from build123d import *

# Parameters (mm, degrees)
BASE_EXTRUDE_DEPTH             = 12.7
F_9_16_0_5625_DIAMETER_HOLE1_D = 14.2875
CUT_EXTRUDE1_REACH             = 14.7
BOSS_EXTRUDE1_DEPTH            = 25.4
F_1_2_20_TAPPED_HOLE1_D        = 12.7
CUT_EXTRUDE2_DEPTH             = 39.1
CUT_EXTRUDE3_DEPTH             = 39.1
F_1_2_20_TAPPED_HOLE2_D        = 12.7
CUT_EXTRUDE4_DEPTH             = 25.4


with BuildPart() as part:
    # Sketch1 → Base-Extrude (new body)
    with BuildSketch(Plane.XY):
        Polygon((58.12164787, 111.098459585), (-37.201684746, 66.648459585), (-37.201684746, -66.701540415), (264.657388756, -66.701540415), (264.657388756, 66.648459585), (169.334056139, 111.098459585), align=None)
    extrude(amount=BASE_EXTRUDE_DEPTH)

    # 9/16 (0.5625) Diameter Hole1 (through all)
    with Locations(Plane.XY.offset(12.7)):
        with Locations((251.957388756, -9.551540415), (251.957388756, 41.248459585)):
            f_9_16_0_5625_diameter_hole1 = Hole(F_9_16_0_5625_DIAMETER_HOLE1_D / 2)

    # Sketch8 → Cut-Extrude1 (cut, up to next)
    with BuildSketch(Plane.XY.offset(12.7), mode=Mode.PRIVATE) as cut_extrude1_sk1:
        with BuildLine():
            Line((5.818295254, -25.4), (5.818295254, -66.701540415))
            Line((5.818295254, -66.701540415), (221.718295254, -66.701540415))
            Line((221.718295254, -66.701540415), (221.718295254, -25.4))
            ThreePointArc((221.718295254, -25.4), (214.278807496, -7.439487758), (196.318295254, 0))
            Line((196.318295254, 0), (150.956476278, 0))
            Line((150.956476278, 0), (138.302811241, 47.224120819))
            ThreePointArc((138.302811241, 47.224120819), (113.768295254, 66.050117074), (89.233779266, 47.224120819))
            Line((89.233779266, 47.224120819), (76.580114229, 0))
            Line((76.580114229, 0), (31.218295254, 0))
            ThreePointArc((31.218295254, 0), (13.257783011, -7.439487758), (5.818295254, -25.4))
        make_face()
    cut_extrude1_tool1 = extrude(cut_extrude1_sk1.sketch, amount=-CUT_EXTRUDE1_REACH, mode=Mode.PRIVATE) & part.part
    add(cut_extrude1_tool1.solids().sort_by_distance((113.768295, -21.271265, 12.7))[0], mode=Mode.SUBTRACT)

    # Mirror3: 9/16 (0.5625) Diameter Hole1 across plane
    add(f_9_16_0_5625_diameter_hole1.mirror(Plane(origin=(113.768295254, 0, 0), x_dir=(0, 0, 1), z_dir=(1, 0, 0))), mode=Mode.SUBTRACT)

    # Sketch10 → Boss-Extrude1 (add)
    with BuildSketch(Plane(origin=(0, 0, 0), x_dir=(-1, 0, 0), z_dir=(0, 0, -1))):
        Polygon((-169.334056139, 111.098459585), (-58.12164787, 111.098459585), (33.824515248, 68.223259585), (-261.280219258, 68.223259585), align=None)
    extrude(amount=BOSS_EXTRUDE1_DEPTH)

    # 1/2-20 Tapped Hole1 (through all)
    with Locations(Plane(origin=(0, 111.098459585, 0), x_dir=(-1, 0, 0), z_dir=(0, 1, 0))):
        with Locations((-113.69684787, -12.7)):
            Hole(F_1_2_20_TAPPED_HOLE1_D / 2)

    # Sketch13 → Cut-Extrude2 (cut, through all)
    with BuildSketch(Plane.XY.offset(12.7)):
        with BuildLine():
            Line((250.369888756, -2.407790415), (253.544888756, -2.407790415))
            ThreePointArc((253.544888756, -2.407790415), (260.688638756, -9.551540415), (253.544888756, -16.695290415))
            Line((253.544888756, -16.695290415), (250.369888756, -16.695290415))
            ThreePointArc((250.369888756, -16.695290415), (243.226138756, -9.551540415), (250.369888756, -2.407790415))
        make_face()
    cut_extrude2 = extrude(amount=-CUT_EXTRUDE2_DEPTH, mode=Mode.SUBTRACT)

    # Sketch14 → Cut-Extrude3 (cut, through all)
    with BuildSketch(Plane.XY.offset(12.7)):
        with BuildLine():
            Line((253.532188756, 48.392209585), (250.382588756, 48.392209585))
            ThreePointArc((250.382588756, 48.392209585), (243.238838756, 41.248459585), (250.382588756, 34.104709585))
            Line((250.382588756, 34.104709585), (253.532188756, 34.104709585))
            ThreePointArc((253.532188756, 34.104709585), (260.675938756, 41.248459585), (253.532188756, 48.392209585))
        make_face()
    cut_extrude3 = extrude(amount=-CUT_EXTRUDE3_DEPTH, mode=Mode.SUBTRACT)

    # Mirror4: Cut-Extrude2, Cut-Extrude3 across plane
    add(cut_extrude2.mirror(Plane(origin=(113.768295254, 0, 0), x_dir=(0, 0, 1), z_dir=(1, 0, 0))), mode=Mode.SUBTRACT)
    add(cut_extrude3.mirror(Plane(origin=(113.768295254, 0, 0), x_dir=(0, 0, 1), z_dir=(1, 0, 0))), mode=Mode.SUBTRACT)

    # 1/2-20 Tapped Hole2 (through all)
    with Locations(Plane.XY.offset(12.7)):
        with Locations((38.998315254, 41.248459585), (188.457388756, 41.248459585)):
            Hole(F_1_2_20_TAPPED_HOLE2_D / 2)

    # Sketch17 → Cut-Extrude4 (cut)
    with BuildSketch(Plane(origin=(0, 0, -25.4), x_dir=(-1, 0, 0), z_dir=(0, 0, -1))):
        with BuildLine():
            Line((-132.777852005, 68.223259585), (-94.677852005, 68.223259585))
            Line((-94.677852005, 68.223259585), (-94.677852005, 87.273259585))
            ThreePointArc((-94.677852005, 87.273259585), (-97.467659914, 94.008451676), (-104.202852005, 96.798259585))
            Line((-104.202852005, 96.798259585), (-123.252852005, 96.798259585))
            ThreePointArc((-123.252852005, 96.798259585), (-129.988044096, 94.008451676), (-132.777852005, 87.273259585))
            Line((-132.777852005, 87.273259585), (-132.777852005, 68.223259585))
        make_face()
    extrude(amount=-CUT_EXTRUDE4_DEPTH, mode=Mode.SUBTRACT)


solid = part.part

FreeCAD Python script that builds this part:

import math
import FreeCAD as App
import Part
import Sketcher
Q = App.Units.Quantity


def add_polygon(sketch, points):
    """Adds a closed chain of lines whose ends are joined by coincident constraints."""
    first, n = sketch.GeometryCount, len(points)
    for a, b in zip(points, points[1:] + points[:1]):
        sketch.addGeometry(Part.LineSegment(App.Vector(*a, 0), App.Vector(*b, 0)), False)
    for i in range(n):
        sketch.addConstraint(Sketcher.Constraint("Coincident", first + i, 2, first + (i + 1) % n, 1))

doc = App.newDocument("Part")
body = doc.addObject("PartDesign::Body", "Body")

# Sketch on XY plane
sketch1 = doc.addObject("Sketcher::SketchObject", "Sketch")
body.addObject(sketch1)
sketch1.AttachmentSupport = (doc.XY_Plane, [""])
sketch1.MapMode = "FlatFace"
add_polygon(sketch1, [(58.121648, 111.09846), (-37.201685, 66.64846), (-37.201685, -66.70154), (264.657389, -66.70154), (264.657389, 66.64846), (169.334056, 111.09846)])  # lines 0-5
sketch1.addConstraint(Sketcher.Constraint("Vertical", 1))
sketch1.addConstraint(Sketcher.Constraint("Horizontal", 2))
sketch1.addConstraint(Sketcher.Constraint("Vertical", 3))
sketch1.addConstraint(Sketcher.Constraint("Horizontal", 5))
sketch1.addConstraint(Sketcher.Constraint("Horizontal", 0, 2, 3, 2))
sketch1.addConstraint(Sketcher.Constraint("Equal", 0, 4))
sketch1.addConstraint(Sketcher.Constraint("Angle", 0, Q("-155 deg")))
sketch1.addConstraint(Sketcher.Constraint("DistanceY", 2, 2, 4, 2, Q("7 in")))
sketch1.addConstraint(Sketcher.Constraint("DistanceY", 1, 2, 1, 1, Q("5.25 in")))
sketch1.addConstraint(Sketcher.Constraint("DistanceX", 5, 2, 5, 1, 111.212408))
sketch1.addConstraint(Sketcher.Constraint("DistanceY", -1, 1, 0, 2, 66.64846))
sketch1.addConstraint(Sketcher.Constraint("DistanceX", -1, 1, 2, 2, 264.657389))
pad1 = doc.addObject("PartDesign::Pad", "Pad")
body.addObject(pad1)
pad1.Profile = sketch1
pad1.Length = Q("0.5 in")

# Sketch on XY plane
sketch2 = doc.addObject("Sketcher::SketchObject", "Sketch001")
body.addObject(sketch2)
sketch2.AttachmentSupport = (doc.XY_Plane, [""])
sketch2.MapMode = "FlatFace"
sketch2.AttachmentOffset = App.Placement(App.Vector(0, 0, 0.5 * 25.4), App.Rotation())
sketch2.addGeometry(Part.Circle(App.Vector(251.957389, -9.55154, 0), App.Vector(0, 0, 1), 7.14375), False)
sketch2.addGeometry(Part.Circle(App.Vector(251.957389, 41.24846, 0), App.Vector(0, 0, 1), 7.14375), False)
sketch2.addConstraint(Sketcher.Constraint("Equal", 0, 1))
sketch2.addConstraint(Sketcher.Constraint("Vertical", 0, 3, 1, 3))
sketch2.addConstraint(Sketcher.Constraint("Diameter", 0, Q("0.5625 in")))
sketch2.addConstraint(Sketcher.Constraint("DistanceY", 0, 3, 1, 3, Q("2 in")))
sketch2.addConstraint(Sketcher.Constraint("DistanceX", -1, 1, 0, 3, 251.957389))
sketch2.addConstraint(Sketcher.Constraint("DistanceY", 0, 3, -1, 1, 9.55154))
doc.recompute()
hole = doc.addObject("PartDesign::Hole", "Hole")
body.addObject(hole)
hole.Profile = sketch2
hole.ThreadType = "None"
hole.Diameter = Q("0.5625 in")
hole.DepthType = "ThroughAll"

# Sketch on XY plane
sketch3 = doc.addObject("Sketcher::SketchObject", "Sketch002")
body.addObject(sketch3)
sketch3.AttachmentSupport = (doc.XY_Plane, [""])
sketch3.MapMode = "FlatFace"
sketch3.AttachmentOffset = App.Placement(App.Vector(0, 0, 0.5 * 25.4), App.Rotation())
sketch3.addGeometry(Part.LineSegment(App.Vector(5.818295, -25.4, 0), App.Vector(5.818295, -66.70154, 0)), False)
sketch3.addGeometry(Part.LineSegment(App.Vector(5.818295, -66.70154, 0), App.Vector(221.718295, -66.70154, 0)), False)
sketch3.addGeometry(Part.LineSegment(App.Vector(221.718295, -66.70154, 0), App.Vector(221.718295, -25.4, 0)), False)
sketch3.addGeometry(Part.ArcOfCircle(Part.Circle(App.Vector(196.318295, -25.4, 0), App.Vector(0, 0, 1), 25.4), math.radians(0), math.radians(90)), False)
sketch3.addGeometry(Part.LineSegment(App.Vector(196.318295, 0, 0), App.Vector(150.956476, 0, 0)), False)
sketch3.addGeometry(Part.LineSegment(App.Vector(150.956476, 0, 0), App.Vector(138.302811, 47.224121, 0)), False)
sketch3.addGeometry(Part.ArcOfCircle(Part.Circle(App.Vector(113.768295, 40.650117, 0), App.Vector(0, 0, 1), 25.4), math.radians(15), math.radians(165)), False)
sketch3.addGeometry(Part.LineSegment(App.Vector(89.233779, 47.224121, 0), App.Vector(76.580114, 0, 0)), False)
sketch3.addGeometry(Part.LineSegment(App.Vector(76.580114, 0, 0), App.Vector(31.218295, 0, 0)), False)
sketch3.addGeometry(Part.ArcOfCircle(Part.Circle(App.Vector(31.218295, -25.4, 0), App.Vector(0, 0, 1), 25.4), math.radians(90), math.radians(180)), False)
sketch3.addConstraint(Sketcher.Constraint("Coincident", 0, 2, 1, 1))
sketch3.addConstraint(Sketcher.Constraint("Coincident", 1, 2, 2, 1))
sketch3.addConstraint(Sketcher.Constraint("Tangent", 2, 2, 3, 1))
sketch3.addConstraint(Sketcher.Constraint("Tangent", 3, 2, 4, 1))
sketch3.addConstraint(Sketcher.Constraint("Coincident", 4, 2, 5, 1))
sketch3.addConstraint(Sketcher.Constraint("Tangent", 5, 2, 6, 1))
sketch3.addConstraint(Sketcher.Constraint("Tangent", 6, 2, 7, 1))
sketch3.addConstraint(Sketcher.Constraint("Coincident", 7, 2, 8, 1))
sketch3.addConstraint(Sketcher.Constraint("Tangent", 8, 2, 9, 1))
sketch3.addConstraint(Sketcher.Constraint("Tangent", 9, 2, 0, 1))
sketch3.addConstraint(Sketcher.Constraint("Vertical", 0))
sketch3.addConstraint(Sketcher.Constraint("Horizontal", 1))
sketch3.addConstraint(Sketcher.Constraint("Vertical", 2))
sketch3.addConstraint(Sketcher.Constraint("Horizontal", 4))
sketch3.addConstraint(Sketcher.Constraint("Horizontal", 8))
sketch3.addConstraint(Sketcher.Constraint("Equal", 3, 6))
sketch3.addConstraint(Sketcher.Constraint("Equal", 6, 9))
sketch3.addConstraint(Sketcher.Constraint("PointOnObject", 3, 2, -1))
sketch3.addConstraint(Sketcher.Constraint("PointOnObject", 7, 2, -1))
sketch3.addConstraint(Sketcher.Constraint("Horizontal", 5, 2, 6, 2))
sketch3.addConstraint(Sketcher.Constraint("Equal", 4, 8))
sketch3.addConstraint(Sketcher.Constraint("Radius", 3, Q("1 in")))
sketch3.addConstraint(Sketcher.Constraint("DistanceX", 1, 1, 1, 2, Q("8.5 in")))
sketch3.addConstraint(Sketcher.Constraint("Angle", 5, Q("105 deg")))
sketch3.addConstraint(Sketcher.Constraint("DistanceX", 4, 2, 4, 1, 45.361819))
sketch3.addConstraint(Sketcher.Constraint("DistanceY", 0, 2, 0, 1, 41.30154))
sketch3.addConstraint(Sketcher.Constraint("DistanceX", -1, 1, 5, 2, 138.302811))
pocket1 = doc.addObject("PartDesign::Pocket", "Pocket")
body.addObject(pocket1)
pocket1.Profile = sketch3
pocket1.Type = "UpToFirst"
doc.recompute()

datumplane = doc.addObject("PartDesign::Plane", "DatumPlane")
body.addObject(datumplane)
datumplane.AttachmentSupport = (doc.YZ_Plane, [""])
datumplane.MapMode = "FlatFace"
datumplane.AttachmentOffset = App.Placement(App.Vector(0, 0, 113.768295), App.Rotation())
mirrored = doc.addObject("PartDesign::Mirrored", "Mirrored")
body.addObject(mirrored)
mirrored.Originals = [hole]
mirrored.MirrorPlane = (datumplane, [""])
body.Tip = mirrored

# Sketch on XY plane
sketch4 = doc.addObject("Sketcher::SketchObject", "Sketch003")
body.addObject(sketch4)
sketch4.AttachmentSupport = (doc.XY_Plane, [""])
sketch4.MapMode = "FlatFace"
add_polygon(sketch4, [(58.121648, 111.09846), (169.334056, 111.09846), (261.280219, 68.22326), (-33.824515, 68.22326)])  # lines 0-3
sketch4.addConstraint(Sketcher.Constraint("Horizontal", 0))
sketch4.addConstraint(Sketcher.Constraint("Horizontal", 2))
sketch4.addConstraint(Sketcher.Constraint("Equal", 1, 3))
sketch4.addConstraint(Sketcher.Constraint("Angle", 1, Q("-25 deg")))
sketch4.addConstraint(Sketcher.Constraint("DistanceY", 1, 2, 0, 2, Q("1.688 in")))
sketch4.addConstraint(Sketcher.Constraint("DistanceX", 0, 1, 0, 2, 111.212408))
sketch4.addConstraint(Sketcher.Constraint("DistanceY", -1, 1, 0, 2, 111.09846))
sketch4.addConstraint(Sketcher.Constraint("DistanceX", -1, 1, 1, 2, 261.280219))
pad2 = doc.addObject("PartDesign::Pad", "Pad001")
body.addObject(pad2)
pad2.Profile = sketch4
pad2.Length = Q("1 in")
pad2.Reversed = True

# Sketch on XZ plane
sketch5 = doc.addObject("Sketcher::SketchObject", "Sketch004")
body.addObject(sketch5)
sketch5.AttachmentSupport = (doc.XZ_Plane, [""])
sketch5.MapMode = "FlatFace"
sketch5.AttachmentOffset = App.Placement(App.Vector(0, 0, -111.09846), App.Rotation())
sketch5.addGeometry(Part.Circle(App.Vector(113.696848, -12.7, 0), App.Vector(0, 0, 1), 6.35), False)
sketch5.addConstraint(Sketcher.Constraint("Diameter", 0, Q("0.5 in")))
sketch5.addConstraint(Sketcher.Constraint("DistanceY", 0, 3, -1, 1, Q("0.5 in")))
sketch5.addConstraint(Sketcher.Constraint("DistanceX", -1, 1, 0, 3, 113.696848))
doc.recompute()
hole2 = doc.addObject("PartDesign::Hole", "Hole001")
body.addObject(hole2)
hole2.Profile = sketch5
hole2.ThreadType = "None"
hole2.Diameter = Q("0.5 in")
hole2.DepthType = "ThroughAll"
hole2.Reversed = True

# Sketch on XY plane
sketch6 = doc.addObject("Sketcher::SketchObject", "Sketch005")
body.addObject(sketch6)
sketch6.AttachmentSupport = (doc.XY_Plane, [""])
sketch6.MapMode = "FlatFace"
sketch6.AttachmentOffset = App.Placement(App.Vector(0, 0, 0.5 * 25.4), App.Rotation())
sketch6.addGeometry(Part.LineSegment(App.Vector(253.544889, -2.40779, 0), App.Vector(250.369889, -2.40779, 0)), False)
sketch6.addGeometry(Part.ArcOfCircle(Part.Circle(App.Vector(250.369889, -9.55154, 0), App.Vector(0, 0, 1), 7.14375), math.radians(90), math.radians(270)), False)
sketch6.addGeometry(Part.LineSegment(App.Vector(250.369889, -16.69529, 0), App.Vector(253.544889, -16.69529, 0)), False)
sketch6.addGeometry(Part.ArcOfCircle(Part.Circle(App.Vector(253.544889, -9.55154, 0), App.Vector(0, 0, 1), 7.14375), math.radians(-90), math.radians(90)), False)
sketch6.addConstraint(Sketcher.Constraint("Tangent", 0, 2, 1, 1))
sketch6.addConstraint(Sketcher.Constraint("Tangent", 1, 2, 2, 1))
sketch6.addConstraint(Sketcher.Constraint("Tangent", 2, 2, 3, 1))
sketch6.addConstraint(Sketcher.Constraint("Tangent", 3, 2, 0, 1))
sketch6.addConstraint(Sketcher.Constraint("Horizontal", 0))
sketch6.addConstraint(Sketcher.Constraint("Horizontal", 2))
sketch6.addConstraint(Sketcher.Constraint("Radius", 1, Q("0.28125 in")))
sketch6.addConstraint(Sketcher.Constraint("DistanceX", 0, 2, 0, 1, Q("0.125 in")))
sketch6.addConstraint(Sketcher.Constraint("DistanceX", -1, 1, 1, 3, 250.369889))
sketch6.addConstraint(Sketcher.Constraint("DistanceY", 1, 3, -1, 1, 9.55154))
pocket2 = doc.addObject("PartDesign::Pocket", "Pocket001")
body.addObject(pocket2)
pocket2.Profile = sketch6
pocket2.Type = "ThroughAll"

# Sketch on XY plane
sketch7 = doc.addObject("Sketcher::SketchObject", "Sketch006")
body.addObject(sketch7)
sketch7.AttachmentSupport = (doc.XY_Plane, [""])
sketch7.MapMode = "FlatFace"
sketch7.AttachmentOffset = App.Placement(App.Vector(0, 0, 0.5 * 25.4), App.Rotation())
sketch7.addGeometry(Part.LineSegment(App.Vector(253.532189, 48.39221, 0), App.Vector(250.382589, 48.39221, 0)), False)
sketch7.addGeometry(Part.ArcOfCircle(Part.Circle(App.Vector(250.382589, 41.24846, 0), App.Vector(0, 0, 1), 7.14375), math.radians(90), math.radians(270)), False)
sketch7.addGeometry(Part.LineSegment(App.Vector(250.382589, 34.10471, 0), App.Vector(253.532189, 34.10471, 0)), False)
sketch7.addGeometry(Part.ArcOfCircle(Part.Circle(App.Vector(253.532189, 41.24846, 0), App.Vector(0, 0, 1), 7.14375), math.radians(-90), math.radians(90)), False)
sketch7.addConstraint(Sketcher.Constraint("Tangent", 0, 2, 1, 1))
sketch7.addConstraint(Sketcher.Constraint("Tangent", 1, 2, 2, 1))
sketch7.addConstraint(Sketcher.Constraint("Tangent", 2, 2, 3, 1))
sketch7.addConstraint(Sketcher.Constraint("Tangent", 3, 2, 0, 1))
sketch7.addConstraint(Sketcher.Constraint("Horizontal", 0))
sketch7.addConstraint(Sketcher.Constraint("Horizontal", 2))
sketch7.addConstraint(Sketcher.Constraint("Radius", 1, Q("0.28125 in")))
sketch7.addConstraint(Sketcher.Constraint("DistanceX", 0, 2, 0, 1, Q("0.124 in")))
sketch7.addConstraint(Sketcher.Constraint("DistanceX", -1, 1, 1, 3, 250.382589))
sketch7.addConstraint(Sketcher.Constraint("DistanceY", -1, 1, 1, 3, 41.24846))
pocket3 = doc.addObject("PartDesign::Pocket", "Pocket002")
body.addObject(pocket3)
pocket3.Profile = sketch7
pocket3.Type = "ThroughAll"
doc.recompute()

datumplane2 = doc.addObject("PartDesign::Plane", "DatumPlane001")
body.addObject(datumplane2)
datumplane2.AttachmentSupport = (doc.YZ_Plane, [""])
datumplane2.MapMode = "FlatFace"
datumplane2.AttachmentOffset = App.Placement(App.Vector(0, 0, 113.768295), App.Rotation())
mirrored2 = doc.addObject("PartDesign::Mirrored", "Mirrored001")
body.addObject(mirrored2)
mirrored2.Originals = [pocket2, pocket3]
mirrored2.MirrorPlane = (datumplane2, [""])
body.Tip = mirrored2

# Sketch on XY plane
sketch8 = doc.addObject("Sketcher::SketchObject", "Sketch007")
body.addObject(sketch8)
sketch8.AttachmentSupport = (doc.XY_Plane, [""])
sketch8.MapMode = "FlatFace"
sketch8.AttachmentOffset = App.Placement(App.Vector(0, 0, 0.5 * 25.4), App.Rotation())
sketch8.addGeometry(Part.Circle(App.Vector(38.998315, 41.24846, 0), App.Vector(0, 0, 1), 6.35), False)
sketch8.addGeometry(Part.Circle(App.Vector(188.457389, 41.24846, 0), App.Vector(0, 0, 1), 6.35), False)
sketch8.addConstraint(Sketcher.Constraint("Equal", 0, 1))
sketch8.addConstraint(Sketcher.Constraint("Horizontal", 0, 3, 1, 3))
sketch8.addConstraint(Sketcher.Constraint("Diameter", 0, Q("0.5 in")))
sketch8.addConstraint(Sketcher.Constraint("DistanceY", -1, 1, 0, 3, 41.24846))
sketch8.addConstraint(Sketcher.Constraint("DistanceX", -1, 1, 1, 3, 188.457389))
sketch8.addConstraint(Sketcher.Constraint("DistanceX", -1, 1, 0, 3, 38.998315))
doc.recompute()
hole3 = doc.addObject("PartDesign::Hole", "Hole002")
body.addObject(hole3)
hole3.Profile = sketch8
hole3.ThreadType = "None"
hole3.Diameter = Q("0.5 in")
hole3.DepthType = "ThroughAll"

# Sketch on XY plane
sketch9 = doc.addObject("Sketcher::SketchObject", "Sketch008")
body.addObject(sketch9)
sketch9.AttachmentSupport = (doc.XY_Plane, [""])
sketch9.MapMode = "FlatFace"
sketch9.AttachmentOffset = App.Placement(App.Vector(0, 0, -1 * 25.4), App.Rotation())
sketch9.addGeometry(Part.LineSegment(App.Vector(132.777852, 68.22326, 0), App.Vector(94.677852, 68.22326, 0)), False)
sketch9.addGeometry(Part.LineSegment(App.Vector(94.677852, 68.22326, 0), App.Vector(94.677852, 87.27326, 0)), False)
sketch9.addGeometry(Part.ArcOfCircle(Part.Circle(App.Vector(104.202852, 87.27326, 0), App.Vector(0, 0, 1), 9.525), math.radians(90), math.radians(180)), False)
sketch9.addGeometry(Part.LineSegment(App.Vector(104.202852, 96.79826, 0), App.Vector(123.252852, 96.79826, 0)), False)
sketch9.addGeometry(Part.ArcOfCircle(Part.Circle(App.Vector(123.252852, 87.27326, 0), App.Vector(0, 0, 1), 9.525), math.radians(0), math.radians(90)), False)
sketch9.addGeometry(Part.LineSegment(App.Vector(132.777852, 87.27326, 0), App.Vector(132.777852, 68.22326, 0)), False)
sketch9.addConstraint(Sketcher.Constraint("Coincident", 0, 2, 1, 1))
sketch9.addConstraint(Sketcher.Constraint("Tangent", 1, 2, 2, 2))
sketch9.addConstraint(Sketcher.Constraint("Tangent", 2, 1, 3, 1))
sketch9.addConstraint(Sketcher.Constraint("Tangent", 3, 2, 4, 2))
sketch9.addConstraint(Sketcher.Constraint("Tangent", 4, 1, 5, 1))
sketch9.addConstraint(Sketcher.Constraint("Coincident", 5, 2, 0, 1))
sketch9.addConstraint(Sketcher.Constraint("Horizontal", 0))
sketch9.addConstraint(Sketcher.Constraint("Vertical", 1))
sketch9.addConstraint(Sketcher.Constraint("Horizontal", 3))
sketch9.addConstraint(Sketcher.Constraint("Vertical", 5))
sketch9.addConstraint(Sketcher.Constraint("Equal", 2, 4))
sketch9.addConstraint(Sketcher.Constraint("Equal", 3, 1))
sketch9.addConstraint(Sketcher.Constraint("DistanceX", 0, 2, 0, 1, Q("1.5 in")))
sketch9.addConstraint(Sketcher.Constraint("Radius", 2, Q("0.375 in")))
sketch9.addConstraint(Sketcher.Constraint("DistanceY", -1, 1, 2, 3, 87.27326))
sketch9.addConstraint(Sketcher.Constraint("DistanceX", -1, 1, 2, 3, 104.202852))
pocket4 = doc.addObject("PartDesign::Pocket", "Pocket003")
body.addObject(pocket4)
pocket4.Profile = sketch9
pocket4.Length = Q("1 in")
pocket4.Reversed = True

doc.recompute()
